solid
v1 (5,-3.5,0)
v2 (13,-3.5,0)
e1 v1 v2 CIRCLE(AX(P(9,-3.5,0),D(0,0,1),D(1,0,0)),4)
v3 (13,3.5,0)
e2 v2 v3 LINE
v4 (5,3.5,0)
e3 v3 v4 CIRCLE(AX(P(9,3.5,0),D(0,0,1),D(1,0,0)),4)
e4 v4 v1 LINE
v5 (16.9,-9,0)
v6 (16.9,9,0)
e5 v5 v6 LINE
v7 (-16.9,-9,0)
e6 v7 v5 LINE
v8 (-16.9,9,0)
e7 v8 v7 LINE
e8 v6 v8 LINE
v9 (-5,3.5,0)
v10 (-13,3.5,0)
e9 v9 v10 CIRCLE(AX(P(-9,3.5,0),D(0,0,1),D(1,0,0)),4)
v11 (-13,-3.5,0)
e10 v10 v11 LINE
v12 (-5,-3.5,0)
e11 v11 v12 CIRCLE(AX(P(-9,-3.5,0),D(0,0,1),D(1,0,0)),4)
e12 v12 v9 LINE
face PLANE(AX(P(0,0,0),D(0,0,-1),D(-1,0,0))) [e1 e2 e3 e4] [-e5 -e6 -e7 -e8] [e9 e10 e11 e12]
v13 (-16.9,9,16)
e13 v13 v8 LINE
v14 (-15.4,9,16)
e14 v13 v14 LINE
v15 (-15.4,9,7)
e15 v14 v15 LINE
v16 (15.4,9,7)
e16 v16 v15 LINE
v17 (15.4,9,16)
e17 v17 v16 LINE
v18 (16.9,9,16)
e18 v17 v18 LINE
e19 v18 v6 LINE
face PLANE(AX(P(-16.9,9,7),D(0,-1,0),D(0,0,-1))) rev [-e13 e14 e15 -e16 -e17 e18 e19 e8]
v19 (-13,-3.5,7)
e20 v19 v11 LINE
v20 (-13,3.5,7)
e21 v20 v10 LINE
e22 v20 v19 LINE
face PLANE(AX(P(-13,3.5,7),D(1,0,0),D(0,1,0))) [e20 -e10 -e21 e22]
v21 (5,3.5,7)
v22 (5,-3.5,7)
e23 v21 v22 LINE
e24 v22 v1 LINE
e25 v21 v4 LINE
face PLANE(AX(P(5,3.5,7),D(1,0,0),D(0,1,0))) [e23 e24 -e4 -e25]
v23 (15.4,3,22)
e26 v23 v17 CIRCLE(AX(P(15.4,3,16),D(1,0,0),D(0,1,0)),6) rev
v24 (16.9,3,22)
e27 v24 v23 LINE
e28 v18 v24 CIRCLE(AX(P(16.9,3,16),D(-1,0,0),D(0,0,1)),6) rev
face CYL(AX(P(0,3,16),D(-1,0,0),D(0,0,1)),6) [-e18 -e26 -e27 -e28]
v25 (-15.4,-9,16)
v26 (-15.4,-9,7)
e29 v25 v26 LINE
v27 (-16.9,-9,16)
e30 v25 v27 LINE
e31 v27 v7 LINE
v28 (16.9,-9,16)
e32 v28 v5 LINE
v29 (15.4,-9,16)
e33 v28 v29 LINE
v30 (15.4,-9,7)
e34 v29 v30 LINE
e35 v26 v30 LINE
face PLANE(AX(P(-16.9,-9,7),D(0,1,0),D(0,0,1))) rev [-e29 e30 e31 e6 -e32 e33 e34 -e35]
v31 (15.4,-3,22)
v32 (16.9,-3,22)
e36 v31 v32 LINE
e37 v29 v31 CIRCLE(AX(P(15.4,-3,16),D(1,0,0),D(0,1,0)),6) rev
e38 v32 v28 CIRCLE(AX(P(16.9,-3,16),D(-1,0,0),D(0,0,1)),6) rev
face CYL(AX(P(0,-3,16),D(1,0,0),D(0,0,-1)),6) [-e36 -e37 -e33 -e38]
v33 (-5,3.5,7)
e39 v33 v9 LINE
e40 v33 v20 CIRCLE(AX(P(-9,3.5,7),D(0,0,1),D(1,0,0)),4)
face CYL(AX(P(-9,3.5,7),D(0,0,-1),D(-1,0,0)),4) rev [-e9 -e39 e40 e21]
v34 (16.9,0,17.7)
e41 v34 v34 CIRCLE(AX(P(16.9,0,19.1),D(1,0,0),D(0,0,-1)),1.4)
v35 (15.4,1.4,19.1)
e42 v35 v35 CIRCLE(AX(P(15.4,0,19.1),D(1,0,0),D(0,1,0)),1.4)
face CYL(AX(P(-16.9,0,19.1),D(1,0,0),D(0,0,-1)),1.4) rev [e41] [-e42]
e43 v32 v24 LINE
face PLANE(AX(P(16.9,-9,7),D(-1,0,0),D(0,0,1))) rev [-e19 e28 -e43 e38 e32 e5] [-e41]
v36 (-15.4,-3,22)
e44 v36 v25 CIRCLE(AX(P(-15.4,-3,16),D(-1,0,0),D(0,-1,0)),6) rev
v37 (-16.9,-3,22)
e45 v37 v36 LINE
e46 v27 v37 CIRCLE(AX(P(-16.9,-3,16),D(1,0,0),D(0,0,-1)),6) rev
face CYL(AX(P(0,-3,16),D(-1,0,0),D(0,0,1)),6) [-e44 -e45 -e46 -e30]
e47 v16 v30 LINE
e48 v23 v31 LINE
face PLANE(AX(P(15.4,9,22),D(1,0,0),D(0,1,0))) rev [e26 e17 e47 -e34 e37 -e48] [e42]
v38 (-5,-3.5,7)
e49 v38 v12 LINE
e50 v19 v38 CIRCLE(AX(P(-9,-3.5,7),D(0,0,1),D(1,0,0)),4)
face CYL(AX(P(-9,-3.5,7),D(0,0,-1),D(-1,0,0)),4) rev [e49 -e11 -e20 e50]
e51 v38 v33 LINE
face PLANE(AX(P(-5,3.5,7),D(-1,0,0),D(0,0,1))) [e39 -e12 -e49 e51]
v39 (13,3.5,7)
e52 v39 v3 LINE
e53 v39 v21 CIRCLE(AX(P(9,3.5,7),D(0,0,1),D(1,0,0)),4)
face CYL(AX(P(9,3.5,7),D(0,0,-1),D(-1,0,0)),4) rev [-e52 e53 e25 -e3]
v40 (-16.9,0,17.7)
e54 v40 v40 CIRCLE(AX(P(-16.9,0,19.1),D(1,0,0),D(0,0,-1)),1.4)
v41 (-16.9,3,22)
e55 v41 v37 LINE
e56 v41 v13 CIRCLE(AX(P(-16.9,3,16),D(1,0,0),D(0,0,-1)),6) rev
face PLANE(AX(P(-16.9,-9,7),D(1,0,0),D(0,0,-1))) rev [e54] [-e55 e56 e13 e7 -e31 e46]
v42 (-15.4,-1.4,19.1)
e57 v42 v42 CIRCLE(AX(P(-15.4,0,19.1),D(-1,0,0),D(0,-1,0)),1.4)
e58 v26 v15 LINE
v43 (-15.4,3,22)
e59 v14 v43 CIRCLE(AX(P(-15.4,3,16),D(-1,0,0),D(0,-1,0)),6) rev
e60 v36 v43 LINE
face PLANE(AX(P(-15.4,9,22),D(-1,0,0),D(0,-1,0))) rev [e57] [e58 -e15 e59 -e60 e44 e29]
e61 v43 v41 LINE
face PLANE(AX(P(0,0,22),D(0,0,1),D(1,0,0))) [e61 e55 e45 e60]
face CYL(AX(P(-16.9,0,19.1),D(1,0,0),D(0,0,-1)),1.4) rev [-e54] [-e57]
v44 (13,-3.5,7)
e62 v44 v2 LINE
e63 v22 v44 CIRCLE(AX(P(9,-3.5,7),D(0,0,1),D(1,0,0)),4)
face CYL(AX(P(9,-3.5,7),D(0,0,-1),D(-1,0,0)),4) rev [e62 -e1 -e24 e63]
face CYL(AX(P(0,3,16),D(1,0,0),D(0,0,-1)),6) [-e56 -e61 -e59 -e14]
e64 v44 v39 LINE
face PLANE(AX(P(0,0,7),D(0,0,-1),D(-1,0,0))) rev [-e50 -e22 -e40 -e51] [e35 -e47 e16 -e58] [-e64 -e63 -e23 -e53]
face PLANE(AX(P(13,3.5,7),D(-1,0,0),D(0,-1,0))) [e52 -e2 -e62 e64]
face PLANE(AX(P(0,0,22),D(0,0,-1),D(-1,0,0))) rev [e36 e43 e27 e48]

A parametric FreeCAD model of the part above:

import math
import FreeCAD as App
import Part
import Sketcher
from FreeCAD import Vector
Q = App.Units.Quantity


def edges_at(feature, points):
    """Names of the edges that pass closest to the given points."""
    edges = feature.Shape.Edges
    near = lambda p: min(range(len(edges)), key=lambda i: edges[i].distToShape(Part.Vertex(*p))[0])
    return sorted({f"Edge{near(p) + 1}" for p in points})


def add_polygon(sketch, points):
    """Adds a closed chain of lines whose ends are joined by coincident constraints."""
    first, n = sketch.GeometryCount, len(points)
    for a, b in zip(points, points[1:] + points[:1]):
        sketch.addGeometry(Part.LineSegment(App.Vector(*a, 0), App.Vector(*b, 0)), False)
    for i in range(n):
        sketch.addConstraint(Sketcher.Constraint("Coincident", first + i, 2, first + (i + 1) % n, 1))

doc = App.newDocument("Part")
body = doc.addObject("PartDesign::Body", "Body")

sketch1 = body.newObject("Sketcher::SketchObject", "Sketch")
sketch1.AttachmentSupport = (doc.getObject("XY_Plane"), [""])
sketch1.MapMode = "FlatFace"
add_polygon(sketch1, [(-16.9, 9), (-16.9, -9), (16.9, -9), (16.9, 9)])
sketch1.addGeometry(Part.ArcOfCircle(Part.Circle(Vector(-9, 3.5, 0), Vector(0, 0, 1), 4), math.radians(0), math.radians(180)), False)
sketch1.addGeometry(Part.LineSegment(Vector(-5, 3.5, 0), Vector(-5, -3.5, 0)), False)
sketch1.addGeometry(Part.ArcOfCircle(Part.Circle(Vector(-9, -3.5, 0), Vector(0, 0, 1), 4), math.radians(180), math.radians(360)), False)
sketch1.addGeometry(Part.LineSegment(Vector(-13, -3.5, 0), Vector(-13, 3.5, 0)), False)
sketch1.addGeometry(Part.ArcOfCircle(Part.Circle(Vector(9, 3.5, 0), Vector(0, 0, 1), 4), math.radians(0), math.radians(180)), False)
sketch1.addGeometry(Part.LineSegment(Vector(13, 3.5, 0), Vector(13, -3.5, 0)), False)
sketch1.addGeometry(Part.ArcOfCircle(Part.Circle(Vector(9, -3.5, 0), Vector(0, 0, 1), 4), math.radians(180), math.radians(360)), False)
sketch1.addGeometry(Part.LineSegment(Vector(5, -3.5, 0), Vector(5, 3.5, 0)), False)
sketch1.addConstraint(Sketcher.Constraint("Tangent", 4, 1, 5, 1))
sketch1.addConstraint(Sketcher.Constraint("Tangent", 5, 2, 6, 2))
sketch1.addConstraint(Sketcher.Constraint("Tangent", 6, 1, 7, 1))
sketch1.addConstraint(Sketcher.Constraint("Tangent", 7, 2, 4, 2))
sketch1.addConstraint(Sketcher.Constraint("Tangent", 8, 1, 9, 1))
sketch1.addConstraint(Sketcher.Constraint("Tangent", 9, 2, 10, 2))
sketch1.addConstraint(Sketcher.Constraint("Tangent", 10, 1, 11, 1))
sketch1.addConstraint(Sketcher.Constraint("Tangent", 11, 2, 8, 2))
sketch1.addConstraint(Sketcher.Constraint("Vertical", 0))
sketch1.addConstraint(Sketcher.Constraint("Horizontal", 1))
sketch1.addConstraint(Sketcher.Constraint("Vertical", 2))
sketch1.addConstraint(Sketcher.Constraint("Horizontal", 3))
sketch1.addConstraint(Sketcher.Constraint("Vertical", 5))
sketch1.addConstraint(Sketcher.Constraint("Vertical", 7))
sketch1.addConstraint(Sketcher.Constraint("Vertical", 9))
sketch1.addConstraint(Sketcher.Constraint("Vertical", 11))
sketch1.addConstraint(Sketcher.Constraint("Equal", 6, 8))
sketch1.addConstraint(Sketcher.Constraint("Symmetric", 6, 3, 8, 3, -1, 1))
sketch1.addConstraint(Sketcher.Constraint("Symmetric", 0, 2, 2, 2, -1, 1))
sketch1.addConstraint(Sketcher.Constraint("Horizontal", 4, 3, 8, 3))
sketch1.addConstraint(Sketcher.Constraint("Horizontal", 6, 3, 10, 3))
sketch1.addConstraint(Sketcher.Constraint("Radius", 4, Q("4 mm")))
sketch1.addConstraint(Sketcher.Constraint("DistanceY", 0, 2, 0, 1, Q("18 mm")))
sketch1.addConstraint(Sketcher.Constraint("DistanceY", 5, 2, 5, 1, Q("7 mm")))
sketch1.addConstraint(Sketcher.Constraint("DistanceX", 1, 1, 1, 2, Q("33.8 mm")))
sketch1.addConstraint(Sketcher.Constraint("DistanceX", 4, 3, -1, 1, Q("9 mm")))
pad1 = body.newObject("PartDesign::Pad", "Pad")
pad1.Profile = sketch1
pad1.Length = 7

sketch2 = body.newObject("Sketcher::SketchObject", "Sketch001")
sketch2.AttachmentSupport = (doc.getObject("XY_Plane"), [""])
sketch2.MapMode = "FlatFace"
sketch2.AttachmentOffset = App.Placement(Vector(0, 0, 7), App.Rotation())
add_polygon(sketch2, [(-16.9, 9), (-16.9, -9), (-15.4, -9), (-15.4, 9)])
add_polygon(sketch2, [(15.4, 9), (15.4, -9), (16.9, -9), (16.9, 9)])
sketch2.addConstraint(Sketcher.Constraint("Vertical", 0))
sketch2.addConstraint(Sketcher.Constraint("Horizontal", 1))
sketch2.addConstraint(Sketcher.Constraint("Vertical", 2))
sketch2.addConstraint(Sketcher.Constraint("Horizontal", 3))
sketch2.addConstraint(Sketcher.Constraint("Vertical", 4))
sketch2.addConstraint(Sketcher.Constraint("Horizontal", 5))
sketch2.addConstraint(Sketcher.Constraint("Vertical", 6))
sketch2.addConstraint(Sketcher.Constraint("Horizontal", 7))
sketch2.addConstraint(Sketcher.Constraint("Symmetric", 2, 2, 4, 2, -1, 1))
sketch2.addConstraint(Sketcher.Constraint("Symmetric", 0, 2, 6, 2, -1, 1))
sketch2.addConstraint(Sketcher.Constraint("Horizontal", 1, 2, 4, 2))
sketch2.addConstraint(Sketcher.Constraint("DistanceY", 0, 2, 0, 1, Q("18 mm")))
sketch2.addConstraint(Sketcher.Constraint("DistanceX", 1, 1, 1, 2, Q("1.5 mm")))
sketch2.addConstraint(Sketcher.Constraint("DistanceX", 0, 2, -1, 1, Q("16.9 mm")))
pad2 = body.newObject("PartDesign::Pad", "Pad001")
pad2.Profile = sketch2
pad2.Length = 15

sketch3 = body.newObject("Sketcher::SketchObject", "Sketch002")
sketch3.AttachmentSupport = (doc.getObject("YZ_Plane"), [""])
sketch3.MapMode = "FlatFace"
sketch3.AttachmentOffset = App.Placement(Vector(0, 0, 16.9), App.Rotation())
sketch3.addGeometry(Part.Circle(Vector(0, 19.1, 0), Vector(0, 0, 1), 1.4), False)
sketch3.addConstraint(Sketcher.Constraint("PointOnObject", 0, 3, -2))
sketch3.addConstraint(Sketcher.Constraint("Diameter", 0, Q("2.8 mm")))
sketch3.addConstraint(Sketcher.Constraint("DistanceY", -1, 1, 0, 3, Q("19.1 mm")))
pocket1 = body.newObject("PartDesign::Pocket", "Pocket")
pocket1.Profile = sketch3
pocket1.Type = "ThroughAll"
doc.recompute()

fillet = body.newObject("PartDesign::Fillet", "Fillet")
fillet.Base = (pocket1, edges_at(pocket1, [
    (16.15, -9, 22),
    (-16.15, -9, 22),
    (-16.15, 9, 22),
    (16.15, 9, 22),
]))
fillet.Radius = 6

doc.recompute()
